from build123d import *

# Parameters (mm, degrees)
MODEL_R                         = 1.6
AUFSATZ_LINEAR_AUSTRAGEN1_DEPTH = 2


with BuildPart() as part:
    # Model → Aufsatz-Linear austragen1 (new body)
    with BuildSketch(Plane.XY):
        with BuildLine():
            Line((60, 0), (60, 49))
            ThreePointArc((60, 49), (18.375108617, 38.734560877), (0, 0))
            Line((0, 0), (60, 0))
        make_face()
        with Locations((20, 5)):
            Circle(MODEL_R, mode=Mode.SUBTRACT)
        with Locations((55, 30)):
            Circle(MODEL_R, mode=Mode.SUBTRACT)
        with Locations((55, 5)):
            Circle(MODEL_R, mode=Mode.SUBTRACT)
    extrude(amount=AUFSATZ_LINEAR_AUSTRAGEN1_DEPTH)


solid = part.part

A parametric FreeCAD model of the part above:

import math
import FreeCAD as App
import Part
import Sketcher
from FreeCAD import Vector
Q = App.Units.Quantity

doc = App.newDocument("Part")
body = doc.addObject("PartDesign::Body", "Body")

# Sketch on XY plane
sketch1 = body.newObject("Sketcher::SketchObject", "Sketch")
sketch1.AttachmentSupport = (doc.getObject("XY_Plane"), [""])
sketch1.MapMode = "FlatFace"
sketch1.addGeometry(Part.LineSegment(Vector(60, 0, 0), Vector(60, 49, 0)), False)
sketch1.addGeometry(Part.ArcOfCircle(Part.Circle(Vector(50.005, 0.004082, 0), Vector(0, 0, 1), 50.005), math.radians(78.470057), math.radians(180.004677)), False)
sketch1.addGeometry(Part.LineSegment(Vector(0, 0, 0), Vector(60, 0, 0)), False)
sketch1.addGeometry(Part.Circle(Vector(20, 5, 0), Vector(0, 0, 1), 1.6), False)
sketch1.addGeometry(Part.Circle(Vector(55, 5, 0), Vector(0, 0, 1), 1.6), False)
sketch1.addGeometry(Part.Circle(Vector(55, 30, 0), Vector(0, 0, 1), 1.6), False)
sketch1.addConstraint(Sketcher.Constraint("Coincident", 0, 2, 1, 1))
sketch1.addConstraint(Sketcher.Constraint("Coincident", 1, 2, 2, 1))
sketch1.addConstraint(Sketcher.Constraint("Coincident", 2, 2, 0, 1))
sketch1.addConstraint(Sketcher.Constraint("Vertical", 0))
sketch1.addConstraint(Sketcher.Constraint("Horizontal", 2))
sketch1.addConstraint(Sketcher.Constraint("Coincident", 1, 2, -1, 1))
sketch1.addConstraint(Sketcher.Constraint("Equal", 3, 4))
sketch1.addConstraint(Sketcher.Constraint("Equal", 4, 5))
sketch1.addConstraint(Sketcher.Constraint("Horizontal", 3, 3, 4, 3))
sketch1.addConstraint(Sketcher.Constraint("Vertical", 4, 3, 5, 3))
sketch1.addConstraint(Sketcher.Constraint("Diameter", 3, Q("3.2 mm")))
sketch1.addConstraint(Sketcher.Constraint("DistanceX", 2, 1, 2, 2, Q("60 mm")))
sketch1.addConstraint(Sketcher.Constraint("DistanceY", 0, 1, 0, 2, Q("49 mm")))
sketch1.addConstraint(Sketcher.Constraint("DistanceX", -1, 1, 3, 3, Q("20 mm")))
sketch1.addConstraint(Sketcher.Constraint("DistanceY", -1, 1, 3, 3, Q("5 mm")))
sketch1.addConstraint(Sketcher.Constraint("DistanceX", -1, 1, 4, 3, Q("55 mm")))
sketch1.addConstraint(Sketcher.Constraint("DistanceY", -1, 1, 5, 3, Q("30 mm")))
sketch1.addConstraint(Sketcher.Constraint("Radius", 1, Q("50.005 mm")))
pad1 = body.newObject("PartDesign::Pad", "Pad")
pad1.Profile = sketch1
pad1.Length = 2

doc.recompute()
